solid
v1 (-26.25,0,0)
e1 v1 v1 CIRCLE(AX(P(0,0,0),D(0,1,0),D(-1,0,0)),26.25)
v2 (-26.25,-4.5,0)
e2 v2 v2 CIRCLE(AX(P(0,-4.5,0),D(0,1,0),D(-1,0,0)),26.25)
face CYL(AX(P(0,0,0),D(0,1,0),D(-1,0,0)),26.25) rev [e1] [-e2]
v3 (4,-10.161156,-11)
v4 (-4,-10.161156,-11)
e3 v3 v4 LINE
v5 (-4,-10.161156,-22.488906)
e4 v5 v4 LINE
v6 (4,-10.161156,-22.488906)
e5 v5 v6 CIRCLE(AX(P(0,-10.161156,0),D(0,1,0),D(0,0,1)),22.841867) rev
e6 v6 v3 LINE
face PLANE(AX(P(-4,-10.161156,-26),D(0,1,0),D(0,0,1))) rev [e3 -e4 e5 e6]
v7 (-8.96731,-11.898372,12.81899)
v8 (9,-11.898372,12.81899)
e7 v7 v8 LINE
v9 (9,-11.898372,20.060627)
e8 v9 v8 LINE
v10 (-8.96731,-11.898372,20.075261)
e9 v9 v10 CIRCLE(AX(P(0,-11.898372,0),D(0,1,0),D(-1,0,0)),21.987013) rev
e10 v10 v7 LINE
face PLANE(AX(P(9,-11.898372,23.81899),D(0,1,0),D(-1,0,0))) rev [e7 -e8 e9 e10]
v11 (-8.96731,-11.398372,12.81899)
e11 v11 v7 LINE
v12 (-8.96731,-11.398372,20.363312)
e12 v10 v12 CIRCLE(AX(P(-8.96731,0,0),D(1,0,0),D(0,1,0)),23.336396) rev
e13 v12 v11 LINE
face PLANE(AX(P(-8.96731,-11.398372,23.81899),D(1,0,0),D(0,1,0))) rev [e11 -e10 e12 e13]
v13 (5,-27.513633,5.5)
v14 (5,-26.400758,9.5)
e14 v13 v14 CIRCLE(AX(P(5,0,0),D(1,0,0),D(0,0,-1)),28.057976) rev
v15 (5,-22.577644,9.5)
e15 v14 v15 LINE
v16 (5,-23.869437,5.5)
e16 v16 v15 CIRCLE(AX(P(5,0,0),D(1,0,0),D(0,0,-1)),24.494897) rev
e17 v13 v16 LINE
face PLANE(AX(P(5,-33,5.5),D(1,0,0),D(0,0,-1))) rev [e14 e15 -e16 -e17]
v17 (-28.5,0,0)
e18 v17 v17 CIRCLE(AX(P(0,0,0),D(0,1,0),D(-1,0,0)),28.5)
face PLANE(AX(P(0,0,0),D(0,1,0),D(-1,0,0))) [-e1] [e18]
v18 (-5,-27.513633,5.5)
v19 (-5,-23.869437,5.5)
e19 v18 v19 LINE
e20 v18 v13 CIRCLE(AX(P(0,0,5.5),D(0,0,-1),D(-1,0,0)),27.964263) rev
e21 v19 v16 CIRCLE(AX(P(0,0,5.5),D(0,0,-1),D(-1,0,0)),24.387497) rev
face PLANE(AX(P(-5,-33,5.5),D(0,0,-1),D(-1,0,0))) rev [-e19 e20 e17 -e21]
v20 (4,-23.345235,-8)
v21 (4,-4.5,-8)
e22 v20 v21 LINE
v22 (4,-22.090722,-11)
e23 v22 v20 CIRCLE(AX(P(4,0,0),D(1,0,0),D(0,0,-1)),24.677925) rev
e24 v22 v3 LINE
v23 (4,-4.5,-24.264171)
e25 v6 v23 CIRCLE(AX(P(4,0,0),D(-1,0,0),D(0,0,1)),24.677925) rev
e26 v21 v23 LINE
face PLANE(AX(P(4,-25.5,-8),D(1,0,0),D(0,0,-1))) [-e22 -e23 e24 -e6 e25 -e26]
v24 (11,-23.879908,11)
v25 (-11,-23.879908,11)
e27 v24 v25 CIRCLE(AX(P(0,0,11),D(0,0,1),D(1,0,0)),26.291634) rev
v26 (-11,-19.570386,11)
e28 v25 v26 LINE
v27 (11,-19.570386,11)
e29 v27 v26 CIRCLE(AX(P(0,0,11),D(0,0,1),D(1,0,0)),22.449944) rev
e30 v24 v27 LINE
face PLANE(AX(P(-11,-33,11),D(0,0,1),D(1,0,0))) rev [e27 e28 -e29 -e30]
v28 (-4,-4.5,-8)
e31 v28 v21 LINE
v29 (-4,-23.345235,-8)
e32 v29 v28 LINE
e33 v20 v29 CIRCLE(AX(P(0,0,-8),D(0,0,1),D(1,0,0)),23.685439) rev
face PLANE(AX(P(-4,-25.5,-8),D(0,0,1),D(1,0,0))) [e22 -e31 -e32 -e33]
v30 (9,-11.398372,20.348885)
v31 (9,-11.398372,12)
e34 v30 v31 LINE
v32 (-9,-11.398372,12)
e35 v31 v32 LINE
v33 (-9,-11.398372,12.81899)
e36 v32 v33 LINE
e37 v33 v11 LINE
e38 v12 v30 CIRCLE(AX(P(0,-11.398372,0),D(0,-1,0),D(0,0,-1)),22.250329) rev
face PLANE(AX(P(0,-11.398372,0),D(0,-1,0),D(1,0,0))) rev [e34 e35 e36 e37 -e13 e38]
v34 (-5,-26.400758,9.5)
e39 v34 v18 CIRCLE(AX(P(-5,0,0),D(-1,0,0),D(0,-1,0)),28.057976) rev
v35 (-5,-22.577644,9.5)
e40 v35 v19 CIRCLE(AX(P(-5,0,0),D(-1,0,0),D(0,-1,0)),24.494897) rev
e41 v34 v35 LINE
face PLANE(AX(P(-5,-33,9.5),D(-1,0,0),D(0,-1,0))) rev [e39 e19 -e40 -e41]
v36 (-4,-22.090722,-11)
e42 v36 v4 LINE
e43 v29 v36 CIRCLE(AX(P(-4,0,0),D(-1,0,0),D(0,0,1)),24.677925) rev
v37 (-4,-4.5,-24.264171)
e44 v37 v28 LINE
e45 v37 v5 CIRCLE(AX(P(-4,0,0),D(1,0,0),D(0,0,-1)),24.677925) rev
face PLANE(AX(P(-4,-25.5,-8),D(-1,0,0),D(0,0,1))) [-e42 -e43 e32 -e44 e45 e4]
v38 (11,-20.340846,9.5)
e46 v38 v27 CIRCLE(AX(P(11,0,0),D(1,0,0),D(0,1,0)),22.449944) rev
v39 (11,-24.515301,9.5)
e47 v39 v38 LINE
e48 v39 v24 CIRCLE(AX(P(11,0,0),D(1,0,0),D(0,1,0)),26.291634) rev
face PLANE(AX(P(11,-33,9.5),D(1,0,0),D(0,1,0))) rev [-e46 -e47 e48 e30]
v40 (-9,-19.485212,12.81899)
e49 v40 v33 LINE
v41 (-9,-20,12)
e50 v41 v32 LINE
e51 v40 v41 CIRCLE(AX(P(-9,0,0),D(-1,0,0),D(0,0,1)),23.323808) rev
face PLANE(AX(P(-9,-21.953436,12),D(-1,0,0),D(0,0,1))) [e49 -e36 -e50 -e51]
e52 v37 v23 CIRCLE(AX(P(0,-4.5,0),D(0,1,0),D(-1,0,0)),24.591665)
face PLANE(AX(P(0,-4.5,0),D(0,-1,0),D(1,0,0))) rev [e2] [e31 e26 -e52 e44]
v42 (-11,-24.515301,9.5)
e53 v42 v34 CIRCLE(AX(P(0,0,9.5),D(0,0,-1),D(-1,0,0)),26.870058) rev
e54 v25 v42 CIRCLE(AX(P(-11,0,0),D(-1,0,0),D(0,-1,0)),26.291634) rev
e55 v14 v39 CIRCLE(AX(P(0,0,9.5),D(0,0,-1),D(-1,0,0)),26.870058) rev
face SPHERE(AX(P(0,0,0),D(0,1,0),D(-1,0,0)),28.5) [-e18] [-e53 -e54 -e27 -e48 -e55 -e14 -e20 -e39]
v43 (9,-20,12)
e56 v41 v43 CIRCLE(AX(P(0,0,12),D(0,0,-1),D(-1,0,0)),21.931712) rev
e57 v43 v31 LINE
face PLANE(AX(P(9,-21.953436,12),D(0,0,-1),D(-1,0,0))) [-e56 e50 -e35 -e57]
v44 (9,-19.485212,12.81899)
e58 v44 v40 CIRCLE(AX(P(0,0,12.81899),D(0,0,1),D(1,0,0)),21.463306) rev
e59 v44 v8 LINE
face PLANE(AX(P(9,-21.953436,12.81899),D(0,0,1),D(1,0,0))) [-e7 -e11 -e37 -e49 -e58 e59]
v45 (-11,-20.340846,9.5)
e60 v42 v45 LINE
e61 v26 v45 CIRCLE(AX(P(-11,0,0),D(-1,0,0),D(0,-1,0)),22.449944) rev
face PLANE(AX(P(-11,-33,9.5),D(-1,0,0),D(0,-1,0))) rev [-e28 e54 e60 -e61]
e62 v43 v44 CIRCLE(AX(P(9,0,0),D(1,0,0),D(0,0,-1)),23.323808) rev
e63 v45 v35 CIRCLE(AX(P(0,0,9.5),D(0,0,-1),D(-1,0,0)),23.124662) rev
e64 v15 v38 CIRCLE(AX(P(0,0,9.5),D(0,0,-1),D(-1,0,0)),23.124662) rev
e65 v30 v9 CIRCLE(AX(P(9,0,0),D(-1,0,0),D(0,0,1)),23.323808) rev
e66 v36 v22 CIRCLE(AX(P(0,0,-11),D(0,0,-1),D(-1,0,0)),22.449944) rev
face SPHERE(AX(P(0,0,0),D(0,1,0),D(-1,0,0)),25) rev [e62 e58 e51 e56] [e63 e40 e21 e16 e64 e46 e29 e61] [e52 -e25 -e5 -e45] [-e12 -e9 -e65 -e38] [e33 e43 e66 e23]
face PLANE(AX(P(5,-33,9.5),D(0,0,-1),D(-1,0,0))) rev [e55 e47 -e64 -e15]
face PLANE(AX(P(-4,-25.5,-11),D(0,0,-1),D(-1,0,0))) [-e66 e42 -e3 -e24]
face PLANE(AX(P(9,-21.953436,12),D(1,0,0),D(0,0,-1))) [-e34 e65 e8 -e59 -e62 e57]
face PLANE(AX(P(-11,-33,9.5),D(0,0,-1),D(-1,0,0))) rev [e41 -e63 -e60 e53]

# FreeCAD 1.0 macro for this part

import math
import FreeCAD as App
import Part
import Sketcher
from FreeCAD import Vector

doc = App.newDocument("Part")
body = doc.addObject("PartDesign::Body", "Body")

# Sketch on XY plane
sketch1 = body.newObject("Sketcher::SketchObject", "Sketch")
sketch1.AttachmentSupport = (doc.getObject("XY_Plane"), [""])
sketch1.MapMode = "FlatFace"
sketch1.addGeometry([
    Part.LineSegment(Vector(-26.25, 0, 0), Vector(-28.5, 0, 0)),  # 0
    Part.ArcOfCircle(Part.Circle(Vector(0, 0, 0), Vector(0, 0, 1), 28.5), math.radians(180), math.radians(270)),  # 1
    Part.LineSegment(Vector(0, -28.5, 0), Vector(0, -25, 0)),  # 2
    Part.ArcOfCircle(Part.Circle(Vector(0, 0, 0), Vector(0, 0, 1), 25), math.radians(-169.63024), math.radians(-90)),  # 3
    Part.LineSegment(Vector(-24.591665, -4.5, 0), Vector(-26.25, -4.5, 0)),  # 4
    Part.LineSegment(Vector(-26.25, -4.5, 0), Vector(-26.25, 0, 0)),  # 5
], False)
sketch1.addConstraint([
    Sketcher.Constraint("Coincident", 0, 2, 1, 1),
    Sketcher.Constraint("Coincident", 1, 2, 2, 1),
    Sketcher.Constraint("Coincident", 2, 2, 3, 2),
    Sketcher.Constraint("Coincident", 3, 1, 4, 1),
    Sketcher.Constraint("Coincident", 4, 2, 5, 1),
    Sketcher.Constraint("Coincident", 5, 2, 0, 1),
    Sketcher.Constraint("Horizontal", 0),
    Sketcher.Constraint("Vertical", 2),
    Sketcher.Constraint("Horizontal", 4),
    Sketcher.Constraint("Vertical", 5),
    Sketcher.Constraint("Coincident", 1, 3, -1, 1),
    Sketcher.Constraint("Coincident", 3, 3, -1, 1),
    Sketcher.Constraint("PointOnObject", 0, 2, -1),
    Sketcher.Constraint("PointOnObject", 1, 2, -2),
    Sketcher.Constraint("Radius", 3, 25.0),
    Sketcher.Constraint("Radius", 1, 28.5),
    Sketcher.Constraint("DistanceY", 5, 1, 5, 2, 4.5),
    Sketcher.Constraint("DistanceX", 0, 2, 0, 1, 2.25),
])
revolution = body.newObject("PartDesign::Revolution", "Revolution")
revolution.Profile = sketch1
revolution.ReferenceAxis = (sketch1, ["V_Axis"])
revolution.Angle = 360

# Sketch on XZ plane
sketch2 = body.newObject("Sketcher::SketchObject", "Sketch001")
sketch2.AttachmentSupport = (doc.getObject("XZ_Plane"), [""])
sketch2.MapMode = "FlatFace"
sketch2.addGeometry([
    Part.LineSegment(Vector(-5, 5.5, 0), Vector(-5, 9.5, 0)),  # 0
    Part.LineSegment(Vector(-5, 9.5, 0), Vector(-11, 9.5, 0)),  # 1
    Part.LineSegment(Vector(-11, 9.5, 0), Vector(-11, 11, 0)),  # 2
    Part.LineSegment(Vector(-11, 11, 0), Vector(11, 11, 0)),  # 3
    Part.LineSegment(Vector(11, 11, 0), Vector(11, 9.5, 0)),  # 4
    Part.LineSegment(Vector(11, 9.5, 0), Vector(5, 9.5, 0)),  # 5
    Part.LineSegment(Vector(5, 9.5, 0), Vector(5, 5.5, 0)),  # 6
    Part.LineSegment(Vector(5, 5.5, 0), Vector(-5, 5.5, 0)),  # 7
], False)
sketch2.addConstraint([
    Sketcher.Constraint("Coincident", 0, 2, 1, 1),
    Sketcher.Constraint("Coincident", 1, 2, 2, 1),
    Sketcher.Constraint("Coincident", 2, 2, 3, 1),
    Sketcher.Constraint("Coincident", 3, 2, 4, 1),
    Sketcher.Constraint("Coincident", 4, 2, 5, 1),
    Sketcher.Constraint("Coincident", 5, 2, 6, 1),
    Sketcher.Constraint("Coincident", 6, 2, 7, 1),
    Sketcher.Constraint("Coincident", 7, 2, 0, 1),
    Sketcher.Constraint("Vertical", 0),
    Sketcher.Constraint("Horizontal", 1),
    Sketcher.Constraint("Vertical", 2),
    Sketcher.Constraint("Horizontal", 3),
    Sketcher.Constraint("Vertical", 4),
    Sketcher.Constraint("Horizontal", 5),
    Sketcher.Constraint("Vertical", 6),
    Sketcher.Constraint("Horizontal", 7),
    Sketcher.Constraint("Symmetric", 1, 2, 4, 2, -2),
    Sketcher.Constraint("Equal", 1, 5),
    Sketcher.Constraint("DistanceX", 1, 2, 1, 1, 6.0),
    Sketcher.Constraint("DistanceX", 3, 1, 3, 2, 22.0),
    Sketcher.Constraint("DistanceY", 0, 1, 0, 2, 4.0),
    Sketcher.Constraint("DistanceY", 2, 1, 2, 2, 1.5),
    Sketcher.Constraint("DistanceY", -1, 1, 2, 2, 11.0),
])
pocket1 = body.newObject("PartDesign::Pocket", "Pocket")
pocket1.Profile = sketch2
pocket1.Length = 33
pocket1.Reversed = True

# Sketch on XZ plane
sketch3 = body.newObject("Sketcher::SketchObject", "Sketch002")
sketch3.AttachmentSupport = (doc.getObject("XZ_Plane"), [""])
sketch3.MapMode = "FlatFace"
sketch3.AttachmentOffset = App.Placement(Vector(0, 0, 11.398372), App.Rotation())
sketch3.addGeometry([
    Part.LineSegment(Vector(-9, 12, 0), Vector(-9, 12.81899, 0)),
    Part.LineSegment(Vector(-9, 12.81899, 0), Vector(9, 12.81899, 0)),
    Part.LineSegment(Vector(9, 12.81899, 0), Vector(9, 12, 0)),
    Part.LineSegment(Vector(9, 12, 0), Vector(-9, 12, 0)),
], False)
sketch3.addConstraint([
    Sketcher.Constraint("Coincident", 0, 2, 1, 1),
    Sketcher.Constraint("Coincident", 1, 2, 2, 1),
    Sketcher.Constraint("Coincident", 2, 2, 3, 1),
    Sketcher.Constraint("Coincident", 3, 2, 0, 1),
    Sketcher.Constraint("Vertical", 0),
    Sketcher.Constraint("Horizontal", 1),
    Sketcher.Constraint("Vertical", 2),
    Sketcher.Constraint("Horizontal", 3),
    Sketcher.Constraint("DistanceX", 1, 1, 1, 2, 18.0),
    Sketcher.Constraint("DistanceX", 0, 2, -1, 1, 9.0),
    Sketcher.Constraint("DistanceY", -1, 1, 2, 2, 12.0),
    Sketcher.Constraint("DistanceY", 0, 1, 0, 2, 0.81899),
])
pad1 = body.newObject("PartDesign::Pad", "Pad")
pad1.Profile = sketch3
pad1.Length = 10.555064

# Sketch on XZ plane
sketch4 = body.newObject("Sketcher::SketchObject", "Sketch003")
sketch4.AttachmentSupport = (doc.getObject("XZ_Plane"), [""])
sketch4.MapMode = "FlatFace"
sketch4.AttachmentOffset = App.Placement(Vector(0, 0, 4.5), App.Rotation())
sketch4.addGeometry([
    Part.LineSegment(Vector(-4, -11, 0), Vector(-4, -8, 0)),
    Part.LineSegment(Vector(-4, -8, 0), Vector(4, -8, 0)),
    Part.LineSegment(Vector(4, -8, 0), Vector(4, -11, 0)),
    Part.LineSegment(Vector(4, -11, 0), Vector(-4, -11, 0)),
], False)
sketch4.addConstraint([
    Sketcher.Constraint("Coincident", 0, 2, 1, 1),
    Sketcher.Constraint("Coincident", 1, 2, 2, 1),
    Sketcher.Constraint("Coincident", 2, 2, 3, 1),
    Sketcher.Constraint("Coincident", 3, 2, 0, 1),
    Sketcher.Constraint("Vertical", 0),
    Sketcher.Constraint("Horizontal", 1),
    Sketcher.Constraint("Vertical", 2),
    Sketcher.Constraint("Horizontal", 3),
    Sketcher.Constraint("DistanceX", 1, 1, 1, 2, 8.0),
    Sketcher.Constraint("DistanceY", 0, 1, 0, 2, 3.0),
    Sketcher.Constraint("DistanceX", 0, 2, -1, 1, 4.0),
    Sketcher.Constraint("DistanceY", 0, 2, -1, 1, 8.0),
])
pad2 = body.newObject("PartDesign::Pad", "Pad001")
pad2.Profile = sketch4
pad2.Length = 21

# Sketch on XY plane
sketch5 = body.newObject("Sketcher::SketchObject", "Sketch004")
sketch5.AttachmentSupport = (doc.getObject("XY_Plane"), [""])
sketch5.MapMode = "FlatFace"
sketch5.AttachmentOffset = App.Placement(Vector(0, 0, -11), App.Rotation())
sketch5.addGeometry([
    Part.LineSegment(Vector(4, -4.5, 0), Vector(4, -10.161156, 0)),
    Part.LineSegment(Vector(4, -10.161156, 0), Vector(-4, -10.161156, 0)),
    Part.LineSegment(Vector(-4, -10.161156, 0), Vector(-4, -4.5, 0)),
    Part.LineSegment(Vector(-4, -4.5, 0), Vector(4, -4.5, 0)),
], False)
sketch5.addConstraint([
    Sketcher.Constraint("Coincident", 0, 2, 1, 1),
    Sketcher.Constraint("Coincident", 1, 2, 2, 1),
    Sketcher.Constraint("Coincident", 2, 2, 3, 1),
    Sketcher.Constraint("Coincident", 3, 2, 0, 1),
    Sketcher.Constraint("Vertical", 0),
    Sketcher.Constraint("Horizontal", 1),
    Sketcher.Constraint("Vertical", 2),
    Sketcher.Constraint("Horizontal", 3),
    Sketcher.Constraint("DistanceX", 1, 2, 1, 1, 8.0),
    Sketcher.Constraint("DistanceX", -1, 1, 0, 2, 4.0),
    Sketcher.Constraint("DistanceY", 2, 2, -1, 1, 4.5),
    Sketcher.Constraint("DistanceY", 0, 2, 0, 1, 5.661156),
])
pad3 = body.newObject("PartDesign::Pad", "Pad002")
pad3.Profile = sketch5
pad3.Length = 15
pad3.Reversed = True

# Sketch on XY plane
sketch6 = body.newObject("Sketcher::SketchObject", "Sketch005")
sketch6.AttachmentSupport = (doc.getObject("XY_Plane"), [""])
sketch6.MapMode = "FlatFace"
sketch6.AttachmentOffset = App.Placement(Vector(0, 0, 12.81899), App.Rotation())
sketch6.addGeometry([
    Part.LineSegment(Vector(-8.96731, -11.398372, 0), Vector(-8.96731, -11.898372, 0)),
    Part.LineSegment(Vector(-8.96731, -11.898372, 0), Vector(9, -11.898372, 0)),
    Part.LineSegment(Vector(9, -11.898372, 0), Vector(9, -11.398372, 0)),
    Part.LineSegment(Vector(9, -11.398372, 0), Vector(-8.96731, -11.398372, 0)),
], False)
sketch6.addConstraint([
    Sketcher.Constraint("Coincident", 0, 2, 1, 1),
    Sketcher.Constraint("Coincident", 1, 2, 2, 1),
    Sketcher.Constraint("Coincident", 2, 2, 3, 1),
    Sketcher.Constraint("Coincident", 3, 2, 0, 1),
    Sketcher.Constraint("Vertical", 0),
    Sketcher.Constraint("Horizontal", 1),
    Sketcher.Constraint("Vertical", 2),
    Sketcher.Constraint("Horizontal", 3),
    Sketcher.Constraint("DistanceY", 0, 2, 0, 1, 0.5),
    Sketcher.Constraint("DistanceX", -1, 1, 1, 2, 9.0),
    Sketcher.Constraint("DistanceX", 1, 1, 1, 2, 17.96731),
    Sketcher.Constraint("DistanceY", 0, 2, -1, 1, 11.898372),
])
pad4 = body.newObject("PartDesign::Pad", "Pad003")
pad4.Profile = sketch6
pad4.Length = 11

doc.recompute()
